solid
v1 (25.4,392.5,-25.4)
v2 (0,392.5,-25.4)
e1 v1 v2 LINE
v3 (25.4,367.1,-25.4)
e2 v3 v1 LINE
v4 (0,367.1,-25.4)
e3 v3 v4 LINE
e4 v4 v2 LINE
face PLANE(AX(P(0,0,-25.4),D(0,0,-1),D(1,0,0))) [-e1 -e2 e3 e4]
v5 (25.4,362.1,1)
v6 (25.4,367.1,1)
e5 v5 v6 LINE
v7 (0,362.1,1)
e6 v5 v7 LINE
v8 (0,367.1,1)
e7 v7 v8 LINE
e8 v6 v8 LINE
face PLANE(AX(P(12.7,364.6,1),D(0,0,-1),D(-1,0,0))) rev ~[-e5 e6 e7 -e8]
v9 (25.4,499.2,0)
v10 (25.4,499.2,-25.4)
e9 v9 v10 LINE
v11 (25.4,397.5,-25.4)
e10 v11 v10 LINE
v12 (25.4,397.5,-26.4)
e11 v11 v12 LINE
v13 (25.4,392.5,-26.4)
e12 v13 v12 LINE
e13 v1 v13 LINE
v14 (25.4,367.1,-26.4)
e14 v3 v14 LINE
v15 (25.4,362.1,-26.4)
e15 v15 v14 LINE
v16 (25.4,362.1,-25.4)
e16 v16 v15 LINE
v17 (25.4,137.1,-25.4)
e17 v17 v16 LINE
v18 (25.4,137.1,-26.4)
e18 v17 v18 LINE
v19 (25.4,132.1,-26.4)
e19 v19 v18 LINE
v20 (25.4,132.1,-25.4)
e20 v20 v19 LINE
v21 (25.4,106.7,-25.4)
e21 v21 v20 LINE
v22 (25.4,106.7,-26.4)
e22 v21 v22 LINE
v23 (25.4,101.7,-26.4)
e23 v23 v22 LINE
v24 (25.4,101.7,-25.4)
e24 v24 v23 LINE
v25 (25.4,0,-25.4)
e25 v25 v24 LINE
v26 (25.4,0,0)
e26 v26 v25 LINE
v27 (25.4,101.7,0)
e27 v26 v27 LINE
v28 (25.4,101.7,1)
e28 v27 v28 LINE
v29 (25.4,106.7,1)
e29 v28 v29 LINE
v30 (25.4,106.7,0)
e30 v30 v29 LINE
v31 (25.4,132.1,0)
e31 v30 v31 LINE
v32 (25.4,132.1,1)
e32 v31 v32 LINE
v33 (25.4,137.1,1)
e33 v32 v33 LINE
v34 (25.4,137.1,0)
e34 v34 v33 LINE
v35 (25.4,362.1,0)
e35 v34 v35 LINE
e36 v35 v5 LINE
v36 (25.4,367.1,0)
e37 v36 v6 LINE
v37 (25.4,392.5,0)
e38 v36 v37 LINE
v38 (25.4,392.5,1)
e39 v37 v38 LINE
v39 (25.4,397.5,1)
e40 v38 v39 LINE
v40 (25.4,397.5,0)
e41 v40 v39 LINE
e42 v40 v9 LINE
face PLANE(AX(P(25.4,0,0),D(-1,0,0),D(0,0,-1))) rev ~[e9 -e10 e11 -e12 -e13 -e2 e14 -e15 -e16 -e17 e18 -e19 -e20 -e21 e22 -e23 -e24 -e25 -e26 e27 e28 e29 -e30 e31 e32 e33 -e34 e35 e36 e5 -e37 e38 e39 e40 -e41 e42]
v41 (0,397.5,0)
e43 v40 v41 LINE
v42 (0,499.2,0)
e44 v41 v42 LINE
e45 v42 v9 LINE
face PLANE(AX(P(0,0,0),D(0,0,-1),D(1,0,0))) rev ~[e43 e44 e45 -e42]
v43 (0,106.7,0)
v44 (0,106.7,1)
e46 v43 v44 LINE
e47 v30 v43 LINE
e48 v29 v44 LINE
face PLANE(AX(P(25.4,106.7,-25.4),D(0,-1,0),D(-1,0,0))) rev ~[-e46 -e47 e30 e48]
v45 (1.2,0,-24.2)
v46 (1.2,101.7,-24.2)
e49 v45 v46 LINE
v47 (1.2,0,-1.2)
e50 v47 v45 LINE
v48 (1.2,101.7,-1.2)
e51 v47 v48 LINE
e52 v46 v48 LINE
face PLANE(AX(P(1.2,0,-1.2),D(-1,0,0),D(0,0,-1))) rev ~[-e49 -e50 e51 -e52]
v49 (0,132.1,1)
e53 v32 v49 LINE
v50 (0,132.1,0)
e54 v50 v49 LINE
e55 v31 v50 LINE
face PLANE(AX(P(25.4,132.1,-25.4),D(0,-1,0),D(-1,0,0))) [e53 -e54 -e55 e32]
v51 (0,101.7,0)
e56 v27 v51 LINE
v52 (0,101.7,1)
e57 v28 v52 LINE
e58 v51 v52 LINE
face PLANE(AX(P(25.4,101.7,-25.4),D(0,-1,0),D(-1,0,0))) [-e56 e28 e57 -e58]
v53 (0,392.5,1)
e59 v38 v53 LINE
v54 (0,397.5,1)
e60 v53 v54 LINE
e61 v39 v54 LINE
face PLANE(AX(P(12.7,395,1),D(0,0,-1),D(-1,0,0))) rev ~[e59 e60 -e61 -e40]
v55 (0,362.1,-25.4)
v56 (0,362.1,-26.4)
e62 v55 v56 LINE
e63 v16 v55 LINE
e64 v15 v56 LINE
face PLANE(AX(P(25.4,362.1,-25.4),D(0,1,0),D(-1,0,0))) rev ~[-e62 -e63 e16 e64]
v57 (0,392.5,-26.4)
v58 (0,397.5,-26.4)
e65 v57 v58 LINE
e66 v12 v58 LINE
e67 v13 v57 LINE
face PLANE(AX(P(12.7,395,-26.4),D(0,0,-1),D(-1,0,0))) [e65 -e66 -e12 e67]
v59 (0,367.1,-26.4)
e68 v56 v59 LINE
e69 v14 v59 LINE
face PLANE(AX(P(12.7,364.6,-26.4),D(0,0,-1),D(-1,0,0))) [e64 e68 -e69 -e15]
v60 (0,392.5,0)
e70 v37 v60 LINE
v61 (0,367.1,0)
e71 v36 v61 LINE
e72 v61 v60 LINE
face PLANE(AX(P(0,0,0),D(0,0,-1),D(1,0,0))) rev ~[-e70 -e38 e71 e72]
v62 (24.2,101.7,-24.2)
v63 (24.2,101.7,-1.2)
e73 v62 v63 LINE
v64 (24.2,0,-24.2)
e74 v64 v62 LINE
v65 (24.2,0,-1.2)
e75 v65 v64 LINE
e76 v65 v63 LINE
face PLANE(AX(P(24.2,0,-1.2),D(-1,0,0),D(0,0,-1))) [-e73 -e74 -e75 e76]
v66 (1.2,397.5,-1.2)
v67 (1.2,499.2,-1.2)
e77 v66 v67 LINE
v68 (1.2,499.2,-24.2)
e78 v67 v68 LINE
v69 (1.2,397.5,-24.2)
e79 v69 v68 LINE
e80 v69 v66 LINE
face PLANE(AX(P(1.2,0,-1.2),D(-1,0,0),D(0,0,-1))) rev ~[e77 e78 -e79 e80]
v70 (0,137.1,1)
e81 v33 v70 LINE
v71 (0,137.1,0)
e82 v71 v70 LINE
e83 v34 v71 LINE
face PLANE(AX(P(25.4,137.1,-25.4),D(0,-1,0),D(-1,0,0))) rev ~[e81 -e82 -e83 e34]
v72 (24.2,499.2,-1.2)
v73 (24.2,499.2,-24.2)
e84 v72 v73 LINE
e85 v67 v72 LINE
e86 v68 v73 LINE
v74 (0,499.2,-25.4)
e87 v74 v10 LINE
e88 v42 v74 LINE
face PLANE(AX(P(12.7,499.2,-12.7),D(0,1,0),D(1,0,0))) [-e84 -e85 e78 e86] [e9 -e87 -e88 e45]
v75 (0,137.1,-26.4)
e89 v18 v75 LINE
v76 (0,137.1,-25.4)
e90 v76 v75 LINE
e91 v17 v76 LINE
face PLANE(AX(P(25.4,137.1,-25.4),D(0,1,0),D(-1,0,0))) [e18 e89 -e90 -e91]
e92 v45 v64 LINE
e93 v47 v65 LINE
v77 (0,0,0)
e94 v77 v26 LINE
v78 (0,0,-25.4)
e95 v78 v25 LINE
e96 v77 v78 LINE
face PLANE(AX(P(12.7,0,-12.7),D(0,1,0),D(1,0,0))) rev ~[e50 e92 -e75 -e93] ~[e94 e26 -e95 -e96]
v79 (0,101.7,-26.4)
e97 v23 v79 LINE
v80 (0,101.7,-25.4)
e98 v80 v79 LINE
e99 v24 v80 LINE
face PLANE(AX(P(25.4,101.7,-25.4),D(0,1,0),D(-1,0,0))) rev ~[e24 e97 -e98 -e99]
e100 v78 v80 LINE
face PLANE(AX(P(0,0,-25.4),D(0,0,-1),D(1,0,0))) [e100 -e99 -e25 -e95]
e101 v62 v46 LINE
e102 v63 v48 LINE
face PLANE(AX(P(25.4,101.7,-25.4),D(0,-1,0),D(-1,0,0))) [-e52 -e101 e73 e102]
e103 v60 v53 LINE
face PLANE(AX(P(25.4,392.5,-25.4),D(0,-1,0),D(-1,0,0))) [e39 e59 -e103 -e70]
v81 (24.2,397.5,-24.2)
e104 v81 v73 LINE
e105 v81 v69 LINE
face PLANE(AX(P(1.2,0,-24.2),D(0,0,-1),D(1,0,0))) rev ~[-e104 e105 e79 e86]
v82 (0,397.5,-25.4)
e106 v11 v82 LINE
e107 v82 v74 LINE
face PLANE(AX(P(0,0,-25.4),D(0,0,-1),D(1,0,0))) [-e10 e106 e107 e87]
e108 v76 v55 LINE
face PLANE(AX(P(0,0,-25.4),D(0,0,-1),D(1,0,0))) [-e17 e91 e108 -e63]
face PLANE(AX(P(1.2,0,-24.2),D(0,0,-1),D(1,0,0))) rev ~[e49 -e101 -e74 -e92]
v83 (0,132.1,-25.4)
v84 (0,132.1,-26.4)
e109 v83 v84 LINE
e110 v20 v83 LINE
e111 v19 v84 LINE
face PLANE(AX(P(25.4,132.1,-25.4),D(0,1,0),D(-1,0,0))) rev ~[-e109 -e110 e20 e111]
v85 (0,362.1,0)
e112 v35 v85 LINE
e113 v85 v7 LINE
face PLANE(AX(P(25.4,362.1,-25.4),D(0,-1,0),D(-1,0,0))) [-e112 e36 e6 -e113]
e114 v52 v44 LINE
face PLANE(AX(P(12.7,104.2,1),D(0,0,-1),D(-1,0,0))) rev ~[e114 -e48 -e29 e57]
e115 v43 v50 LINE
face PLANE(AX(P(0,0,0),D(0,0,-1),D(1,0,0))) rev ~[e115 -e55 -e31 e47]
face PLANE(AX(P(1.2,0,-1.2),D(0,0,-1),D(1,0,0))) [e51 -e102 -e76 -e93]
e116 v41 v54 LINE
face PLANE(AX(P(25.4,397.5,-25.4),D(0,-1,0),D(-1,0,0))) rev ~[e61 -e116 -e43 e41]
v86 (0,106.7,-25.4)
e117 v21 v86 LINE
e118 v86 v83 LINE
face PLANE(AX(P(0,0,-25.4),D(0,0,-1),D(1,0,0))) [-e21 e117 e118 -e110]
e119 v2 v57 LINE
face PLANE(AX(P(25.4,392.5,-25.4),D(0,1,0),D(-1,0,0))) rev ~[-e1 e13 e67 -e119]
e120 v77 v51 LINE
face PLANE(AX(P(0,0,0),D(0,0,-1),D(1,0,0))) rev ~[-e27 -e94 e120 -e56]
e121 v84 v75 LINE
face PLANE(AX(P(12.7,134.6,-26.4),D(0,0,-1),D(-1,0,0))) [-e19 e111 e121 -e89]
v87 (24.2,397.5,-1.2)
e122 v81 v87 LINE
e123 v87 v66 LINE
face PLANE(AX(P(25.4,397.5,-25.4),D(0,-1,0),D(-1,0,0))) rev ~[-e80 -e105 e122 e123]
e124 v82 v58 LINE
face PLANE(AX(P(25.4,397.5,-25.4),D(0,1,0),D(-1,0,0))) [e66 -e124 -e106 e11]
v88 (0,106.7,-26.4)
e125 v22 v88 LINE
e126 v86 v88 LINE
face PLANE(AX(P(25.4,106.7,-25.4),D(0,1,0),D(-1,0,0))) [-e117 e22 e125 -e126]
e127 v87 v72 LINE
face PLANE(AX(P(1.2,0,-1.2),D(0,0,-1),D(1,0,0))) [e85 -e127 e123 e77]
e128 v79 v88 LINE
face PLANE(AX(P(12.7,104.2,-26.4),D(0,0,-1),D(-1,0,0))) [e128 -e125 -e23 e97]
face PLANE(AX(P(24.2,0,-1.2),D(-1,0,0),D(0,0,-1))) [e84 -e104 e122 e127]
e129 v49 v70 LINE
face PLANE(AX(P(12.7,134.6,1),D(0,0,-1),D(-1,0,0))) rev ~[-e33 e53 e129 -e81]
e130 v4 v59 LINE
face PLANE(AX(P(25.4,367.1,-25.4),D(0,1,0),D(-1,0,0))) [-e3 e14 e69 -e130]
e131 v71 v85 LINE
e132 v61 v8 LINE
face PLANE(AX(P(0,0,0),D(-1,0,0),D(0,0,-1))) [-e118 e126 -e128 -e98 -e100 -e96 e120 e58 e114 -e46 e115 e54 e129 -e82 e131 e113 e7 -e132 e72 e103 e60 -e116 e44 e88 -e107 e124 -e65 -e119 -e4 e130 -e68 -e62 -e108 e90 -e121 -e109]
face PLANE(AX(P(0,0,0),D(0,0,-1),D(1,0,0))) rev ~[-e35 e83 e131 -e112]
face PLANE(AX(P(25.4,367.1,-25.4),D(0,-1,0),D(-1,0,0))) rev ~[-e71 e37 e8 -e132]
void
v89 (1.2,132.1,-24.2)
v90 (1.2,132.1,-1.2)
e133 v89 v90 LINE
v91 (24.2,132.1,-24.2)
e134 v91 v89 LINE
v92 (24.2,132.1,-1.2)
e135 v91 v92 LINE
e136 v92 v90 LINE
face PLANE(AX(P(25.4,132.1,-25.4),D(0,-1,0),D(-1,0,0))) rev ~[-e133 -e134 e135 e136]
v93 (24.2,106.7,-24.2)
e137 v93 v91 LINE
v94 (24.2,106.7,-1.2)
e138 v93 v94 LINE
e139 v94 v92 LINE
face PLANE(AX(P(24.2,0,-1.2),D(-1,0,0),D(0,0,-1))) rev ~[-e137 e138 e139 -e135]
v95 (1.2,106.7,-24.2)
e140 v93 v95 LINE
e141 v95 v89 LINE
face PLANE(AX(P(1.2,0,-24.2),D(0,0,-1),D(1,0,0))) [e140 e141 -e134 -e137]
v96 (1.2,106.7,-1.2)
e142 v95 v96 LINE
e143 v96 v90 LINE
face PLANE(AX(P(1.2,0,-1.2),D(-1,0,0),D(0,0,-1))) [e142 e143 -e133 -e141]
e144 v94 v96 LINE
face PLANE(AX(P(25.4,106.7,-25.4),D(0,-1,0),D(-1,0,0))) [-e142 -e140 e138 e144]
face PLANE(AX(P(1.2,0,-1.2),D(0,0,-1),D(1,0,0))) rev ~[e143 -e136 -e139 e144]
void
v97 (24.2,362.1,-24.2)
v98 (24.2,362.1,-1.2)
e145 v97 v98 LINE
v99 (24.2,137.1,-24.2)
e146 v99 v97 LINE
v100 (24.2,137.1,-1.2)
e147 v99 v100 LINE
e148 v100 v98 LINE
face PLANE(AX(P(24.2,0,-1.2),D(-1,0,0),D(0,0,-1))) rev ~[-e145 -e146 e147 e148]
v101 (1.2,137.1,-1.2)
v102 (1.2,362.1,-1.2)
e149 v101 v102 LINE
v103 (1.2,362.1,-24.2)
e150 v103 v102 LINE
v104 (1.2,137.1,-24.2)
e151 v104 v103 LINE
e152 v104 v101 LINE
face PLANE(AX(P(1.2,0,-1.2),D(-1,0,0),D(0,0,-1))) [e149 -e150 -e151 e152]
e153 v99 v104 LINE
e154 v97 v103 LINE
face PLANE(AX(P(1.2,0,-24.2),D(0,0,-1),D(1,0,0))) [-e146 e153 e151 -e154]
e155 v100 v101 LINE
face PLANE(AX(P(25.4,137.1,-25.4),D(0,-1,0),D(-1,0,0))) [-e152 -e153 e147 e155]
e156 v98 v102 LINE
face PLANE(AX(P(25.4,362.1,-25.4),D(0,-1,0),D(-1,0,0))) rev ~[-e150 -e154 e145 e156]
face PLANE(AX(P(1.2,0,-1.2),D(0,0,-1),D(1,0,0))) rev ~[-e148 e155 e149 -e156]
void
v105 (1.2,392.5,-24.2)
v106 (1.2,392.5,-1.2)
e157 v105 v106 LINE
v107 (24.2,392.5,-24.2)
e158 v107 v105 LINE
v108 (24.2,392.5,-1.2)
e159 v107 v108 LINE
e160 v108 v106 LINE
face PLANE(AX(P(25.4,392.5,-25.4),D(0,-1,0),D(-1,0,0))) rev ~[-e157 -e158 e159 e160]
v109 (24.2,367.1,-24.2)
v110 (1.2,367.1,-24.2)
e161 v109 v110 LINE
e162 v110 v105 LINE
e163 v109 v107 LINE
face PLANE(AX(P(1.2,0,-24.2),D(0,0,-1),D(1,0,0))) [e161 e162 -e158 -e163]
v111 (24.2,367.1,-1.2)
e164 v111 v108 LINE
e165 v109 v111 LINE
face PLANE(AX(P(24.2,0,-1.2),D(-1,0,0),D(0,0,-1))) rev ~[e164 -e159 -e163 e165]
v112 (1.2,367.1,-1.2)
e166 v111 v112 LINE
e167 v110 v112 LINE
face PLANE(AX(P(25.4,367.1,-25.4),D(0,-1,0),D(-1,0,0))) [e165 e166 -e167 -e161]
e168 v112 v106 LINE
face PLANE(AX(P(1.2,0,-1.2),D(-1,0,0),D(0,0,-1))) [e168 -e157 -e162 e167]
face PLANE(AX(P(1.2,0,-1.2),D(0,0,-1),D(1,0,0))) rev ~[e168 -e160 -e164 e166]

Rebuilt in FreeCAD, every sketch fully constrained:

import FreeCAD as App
import Part
import Sketcher

V = App.Vector


def add_polygon(sketch, points):
    """Adds a closed chain of lines whose ends are joined by coincident constraints."""
    first, n = sketch.GeometryCount, len(points)
    for a, b in zip(points, points[1:] + points[:1]):
        sketch.addGeometry(Part.LineSegment(App.Vector(*a, 0), App.Vector(*b, 0)), False)
    for i in range(n):
        sketch.addConstraint(Sketcher.Constraint("Coincident", first + i, 2, first + (i + 1) % n, 1))

doc = App.newDocument("Part")
body = doc.addObject("PartDesign::Body", "Body")

# Sketch on XZ plane
sketch1 = doc.addObject("Sketcher::SketchObject", "Sketch")
body.addObject(sketch1)
sketch1.AttachmentSupport = (doc.XZ_Plane, [""])
sketch1.MapMode = "FlatFace"
add_polygon(sketch1, [(0, -25), (0, 0), (25, 0), (25, -25)])  # lines 0-3
add_polygon(sketch1, [(24, -1), (1, -1), (1, -24), (24, -24)])  # lines 4-7
sketch1.addConstraint([
    Sketcher.Constraint("Vertical", 0),
    Sketcher.Constraint("Horizontal", 1),
    Sketcher.Constraint("Vertical", 2),
    Sketcher.Constraint("Horizontal", 3),
    Sketcher.Constraint("Horizontal", 4),
    Sketcher.Constraint("Vertical", 5),
    Sketcher.Constraint("Horizontal", 6),
    Sketcher.Constraint("Vertical", 7),
    Sketcher.Constraint("Coincident", 0, 2, -1, 1),
    Sketcher.Constraint("Equal", 3, 0),
    Sketcher.Constraint("Equal", 6, 5),
    Sketcher.Constraint("DistanceX", 4, 2, 4, 1, 23.0),
    Sketcher.Constraint("DistanceX", 1, 1, 1, 2, 25.4),
    Sketcher.Constraint("DistanceX", -1, 1, 4, 2, 1.2),
    Sketcher.Constraint("DistanceY", 4, 2, -1, 1, 1.2),
])
pad1 = doc.addObject("PartDesign::Pad", "Pad")
body.addObject(pad1)
pad1.Profile = sketch1
pad1.Length = 499.2
pad1.Reversed = True

# Sketch on XY plane
sketch2 = doc.addObject("Sketcher::SketchObject", "Sketch001")
body.addObject(sketch2)
sketch2.AttachmentSupport = (doc.XY_Plane, [""])
sketch2.MapMode = "FlatFace"
sketch2.AttachmentOffset = App.Placement(V(0, 0, -25.4), App.Rotation())
add_polygon(sketch2, [(25, 107), (25, 102), (0, 102), (0, 107)])  # lines 0-3
add_polygon(sketch2, [(25, 137), (25, 132), (0, 132), (0, 137)])  # lines 4-7
add_polygon(sketch2, [(25, 398), (25, 392), (0, 392), (0, 398)])  # lines 8-11
add_polygon(sketch2, [(25, 367), (25, 362), (0, 362), (0, 367)])  # lines 12-15
sketch2.addConstraint([
    Sketcher.Constraint("Vertical", 0),
    Sketcher.Constraint("Horizontal", 1),
    Sketcher.Constraint("Vertical", 2),
    Sketcher.Constraint("Horizontal", 3),
    Sketcher.Constraint("Vertical", 4),
    Sketcher.Constraint("Horizontal", 5),
    Sketcher.Constraint("Vertical", 6),
    Sketcher.Constraint("Horizontal", 7),
    Sketcher.Constraint("Vertical", 8),
    Sketcher.Constraint("Horizontal", 9),
    Sketcher.Constraint("Vertical", 10),
    Sketcher.Constraint("Horizontal", 11),
    Sketcher.Constraint("Vertical", 12),
    Sketcher.Constraint("Horizontal", 13),
    Sketcher.Constraint("Vertical", 14),
    Sketcher.Constraint("Horizontal", 15),
    Sketcher.Constraint("PointOnObject", 1, 2, -2),
    Sketcher.Constraint("PointOnObject", 5, 2, -2),
    Sketcher.Constraint("PointOnObject", 9, 2, -2),
    Sketcher.Constraint("PointOnObject", 13, 2, -2),
    Sketcher.Constraint("Vertical", 3, 2, 4, 2),
    Sketcher.Constraint("Vertical", 7, 2, 8, 2),
    Sketcher.Constraint("Vertical", 11, 2, 12, 2),
    Sketcher.Constraint("Equal", 2, 4),
    Sketcher.Constraint("Equal", 6, 8),
    Sketcher.Constraint("Equal", 10, 12),
    Sketcher.Constraint("DistanceY", 0, 2, 0, 1, 5.0),
    Sketcher.Constraint("DistanceX", 1, 2, 1, 1, 25.4),
    Sketcher.Constraint("DistanceY", 7, 2, 12, 2, 225.0),
    Sketcher.Constraint("DistanceY", -1, 1, 0, 2, 101.7),
    Sketcher.Constraint("DistanceY", -1, 1, 4, 2, 132.1),
    Sketcher.Constraint("DistanceY", -1, 1, 8, 2, 392.5),
])
pad2 = doc.addObject("PartDesign::Pad", "Pad001")
body.addObject(pad2)
pad2.Profile = sketch2
pad2.Type = "TwoLengths"
pad2.Length = 1
pad2.Length2 = 26.4
pad2.Reversed = True

doc.recompute()
